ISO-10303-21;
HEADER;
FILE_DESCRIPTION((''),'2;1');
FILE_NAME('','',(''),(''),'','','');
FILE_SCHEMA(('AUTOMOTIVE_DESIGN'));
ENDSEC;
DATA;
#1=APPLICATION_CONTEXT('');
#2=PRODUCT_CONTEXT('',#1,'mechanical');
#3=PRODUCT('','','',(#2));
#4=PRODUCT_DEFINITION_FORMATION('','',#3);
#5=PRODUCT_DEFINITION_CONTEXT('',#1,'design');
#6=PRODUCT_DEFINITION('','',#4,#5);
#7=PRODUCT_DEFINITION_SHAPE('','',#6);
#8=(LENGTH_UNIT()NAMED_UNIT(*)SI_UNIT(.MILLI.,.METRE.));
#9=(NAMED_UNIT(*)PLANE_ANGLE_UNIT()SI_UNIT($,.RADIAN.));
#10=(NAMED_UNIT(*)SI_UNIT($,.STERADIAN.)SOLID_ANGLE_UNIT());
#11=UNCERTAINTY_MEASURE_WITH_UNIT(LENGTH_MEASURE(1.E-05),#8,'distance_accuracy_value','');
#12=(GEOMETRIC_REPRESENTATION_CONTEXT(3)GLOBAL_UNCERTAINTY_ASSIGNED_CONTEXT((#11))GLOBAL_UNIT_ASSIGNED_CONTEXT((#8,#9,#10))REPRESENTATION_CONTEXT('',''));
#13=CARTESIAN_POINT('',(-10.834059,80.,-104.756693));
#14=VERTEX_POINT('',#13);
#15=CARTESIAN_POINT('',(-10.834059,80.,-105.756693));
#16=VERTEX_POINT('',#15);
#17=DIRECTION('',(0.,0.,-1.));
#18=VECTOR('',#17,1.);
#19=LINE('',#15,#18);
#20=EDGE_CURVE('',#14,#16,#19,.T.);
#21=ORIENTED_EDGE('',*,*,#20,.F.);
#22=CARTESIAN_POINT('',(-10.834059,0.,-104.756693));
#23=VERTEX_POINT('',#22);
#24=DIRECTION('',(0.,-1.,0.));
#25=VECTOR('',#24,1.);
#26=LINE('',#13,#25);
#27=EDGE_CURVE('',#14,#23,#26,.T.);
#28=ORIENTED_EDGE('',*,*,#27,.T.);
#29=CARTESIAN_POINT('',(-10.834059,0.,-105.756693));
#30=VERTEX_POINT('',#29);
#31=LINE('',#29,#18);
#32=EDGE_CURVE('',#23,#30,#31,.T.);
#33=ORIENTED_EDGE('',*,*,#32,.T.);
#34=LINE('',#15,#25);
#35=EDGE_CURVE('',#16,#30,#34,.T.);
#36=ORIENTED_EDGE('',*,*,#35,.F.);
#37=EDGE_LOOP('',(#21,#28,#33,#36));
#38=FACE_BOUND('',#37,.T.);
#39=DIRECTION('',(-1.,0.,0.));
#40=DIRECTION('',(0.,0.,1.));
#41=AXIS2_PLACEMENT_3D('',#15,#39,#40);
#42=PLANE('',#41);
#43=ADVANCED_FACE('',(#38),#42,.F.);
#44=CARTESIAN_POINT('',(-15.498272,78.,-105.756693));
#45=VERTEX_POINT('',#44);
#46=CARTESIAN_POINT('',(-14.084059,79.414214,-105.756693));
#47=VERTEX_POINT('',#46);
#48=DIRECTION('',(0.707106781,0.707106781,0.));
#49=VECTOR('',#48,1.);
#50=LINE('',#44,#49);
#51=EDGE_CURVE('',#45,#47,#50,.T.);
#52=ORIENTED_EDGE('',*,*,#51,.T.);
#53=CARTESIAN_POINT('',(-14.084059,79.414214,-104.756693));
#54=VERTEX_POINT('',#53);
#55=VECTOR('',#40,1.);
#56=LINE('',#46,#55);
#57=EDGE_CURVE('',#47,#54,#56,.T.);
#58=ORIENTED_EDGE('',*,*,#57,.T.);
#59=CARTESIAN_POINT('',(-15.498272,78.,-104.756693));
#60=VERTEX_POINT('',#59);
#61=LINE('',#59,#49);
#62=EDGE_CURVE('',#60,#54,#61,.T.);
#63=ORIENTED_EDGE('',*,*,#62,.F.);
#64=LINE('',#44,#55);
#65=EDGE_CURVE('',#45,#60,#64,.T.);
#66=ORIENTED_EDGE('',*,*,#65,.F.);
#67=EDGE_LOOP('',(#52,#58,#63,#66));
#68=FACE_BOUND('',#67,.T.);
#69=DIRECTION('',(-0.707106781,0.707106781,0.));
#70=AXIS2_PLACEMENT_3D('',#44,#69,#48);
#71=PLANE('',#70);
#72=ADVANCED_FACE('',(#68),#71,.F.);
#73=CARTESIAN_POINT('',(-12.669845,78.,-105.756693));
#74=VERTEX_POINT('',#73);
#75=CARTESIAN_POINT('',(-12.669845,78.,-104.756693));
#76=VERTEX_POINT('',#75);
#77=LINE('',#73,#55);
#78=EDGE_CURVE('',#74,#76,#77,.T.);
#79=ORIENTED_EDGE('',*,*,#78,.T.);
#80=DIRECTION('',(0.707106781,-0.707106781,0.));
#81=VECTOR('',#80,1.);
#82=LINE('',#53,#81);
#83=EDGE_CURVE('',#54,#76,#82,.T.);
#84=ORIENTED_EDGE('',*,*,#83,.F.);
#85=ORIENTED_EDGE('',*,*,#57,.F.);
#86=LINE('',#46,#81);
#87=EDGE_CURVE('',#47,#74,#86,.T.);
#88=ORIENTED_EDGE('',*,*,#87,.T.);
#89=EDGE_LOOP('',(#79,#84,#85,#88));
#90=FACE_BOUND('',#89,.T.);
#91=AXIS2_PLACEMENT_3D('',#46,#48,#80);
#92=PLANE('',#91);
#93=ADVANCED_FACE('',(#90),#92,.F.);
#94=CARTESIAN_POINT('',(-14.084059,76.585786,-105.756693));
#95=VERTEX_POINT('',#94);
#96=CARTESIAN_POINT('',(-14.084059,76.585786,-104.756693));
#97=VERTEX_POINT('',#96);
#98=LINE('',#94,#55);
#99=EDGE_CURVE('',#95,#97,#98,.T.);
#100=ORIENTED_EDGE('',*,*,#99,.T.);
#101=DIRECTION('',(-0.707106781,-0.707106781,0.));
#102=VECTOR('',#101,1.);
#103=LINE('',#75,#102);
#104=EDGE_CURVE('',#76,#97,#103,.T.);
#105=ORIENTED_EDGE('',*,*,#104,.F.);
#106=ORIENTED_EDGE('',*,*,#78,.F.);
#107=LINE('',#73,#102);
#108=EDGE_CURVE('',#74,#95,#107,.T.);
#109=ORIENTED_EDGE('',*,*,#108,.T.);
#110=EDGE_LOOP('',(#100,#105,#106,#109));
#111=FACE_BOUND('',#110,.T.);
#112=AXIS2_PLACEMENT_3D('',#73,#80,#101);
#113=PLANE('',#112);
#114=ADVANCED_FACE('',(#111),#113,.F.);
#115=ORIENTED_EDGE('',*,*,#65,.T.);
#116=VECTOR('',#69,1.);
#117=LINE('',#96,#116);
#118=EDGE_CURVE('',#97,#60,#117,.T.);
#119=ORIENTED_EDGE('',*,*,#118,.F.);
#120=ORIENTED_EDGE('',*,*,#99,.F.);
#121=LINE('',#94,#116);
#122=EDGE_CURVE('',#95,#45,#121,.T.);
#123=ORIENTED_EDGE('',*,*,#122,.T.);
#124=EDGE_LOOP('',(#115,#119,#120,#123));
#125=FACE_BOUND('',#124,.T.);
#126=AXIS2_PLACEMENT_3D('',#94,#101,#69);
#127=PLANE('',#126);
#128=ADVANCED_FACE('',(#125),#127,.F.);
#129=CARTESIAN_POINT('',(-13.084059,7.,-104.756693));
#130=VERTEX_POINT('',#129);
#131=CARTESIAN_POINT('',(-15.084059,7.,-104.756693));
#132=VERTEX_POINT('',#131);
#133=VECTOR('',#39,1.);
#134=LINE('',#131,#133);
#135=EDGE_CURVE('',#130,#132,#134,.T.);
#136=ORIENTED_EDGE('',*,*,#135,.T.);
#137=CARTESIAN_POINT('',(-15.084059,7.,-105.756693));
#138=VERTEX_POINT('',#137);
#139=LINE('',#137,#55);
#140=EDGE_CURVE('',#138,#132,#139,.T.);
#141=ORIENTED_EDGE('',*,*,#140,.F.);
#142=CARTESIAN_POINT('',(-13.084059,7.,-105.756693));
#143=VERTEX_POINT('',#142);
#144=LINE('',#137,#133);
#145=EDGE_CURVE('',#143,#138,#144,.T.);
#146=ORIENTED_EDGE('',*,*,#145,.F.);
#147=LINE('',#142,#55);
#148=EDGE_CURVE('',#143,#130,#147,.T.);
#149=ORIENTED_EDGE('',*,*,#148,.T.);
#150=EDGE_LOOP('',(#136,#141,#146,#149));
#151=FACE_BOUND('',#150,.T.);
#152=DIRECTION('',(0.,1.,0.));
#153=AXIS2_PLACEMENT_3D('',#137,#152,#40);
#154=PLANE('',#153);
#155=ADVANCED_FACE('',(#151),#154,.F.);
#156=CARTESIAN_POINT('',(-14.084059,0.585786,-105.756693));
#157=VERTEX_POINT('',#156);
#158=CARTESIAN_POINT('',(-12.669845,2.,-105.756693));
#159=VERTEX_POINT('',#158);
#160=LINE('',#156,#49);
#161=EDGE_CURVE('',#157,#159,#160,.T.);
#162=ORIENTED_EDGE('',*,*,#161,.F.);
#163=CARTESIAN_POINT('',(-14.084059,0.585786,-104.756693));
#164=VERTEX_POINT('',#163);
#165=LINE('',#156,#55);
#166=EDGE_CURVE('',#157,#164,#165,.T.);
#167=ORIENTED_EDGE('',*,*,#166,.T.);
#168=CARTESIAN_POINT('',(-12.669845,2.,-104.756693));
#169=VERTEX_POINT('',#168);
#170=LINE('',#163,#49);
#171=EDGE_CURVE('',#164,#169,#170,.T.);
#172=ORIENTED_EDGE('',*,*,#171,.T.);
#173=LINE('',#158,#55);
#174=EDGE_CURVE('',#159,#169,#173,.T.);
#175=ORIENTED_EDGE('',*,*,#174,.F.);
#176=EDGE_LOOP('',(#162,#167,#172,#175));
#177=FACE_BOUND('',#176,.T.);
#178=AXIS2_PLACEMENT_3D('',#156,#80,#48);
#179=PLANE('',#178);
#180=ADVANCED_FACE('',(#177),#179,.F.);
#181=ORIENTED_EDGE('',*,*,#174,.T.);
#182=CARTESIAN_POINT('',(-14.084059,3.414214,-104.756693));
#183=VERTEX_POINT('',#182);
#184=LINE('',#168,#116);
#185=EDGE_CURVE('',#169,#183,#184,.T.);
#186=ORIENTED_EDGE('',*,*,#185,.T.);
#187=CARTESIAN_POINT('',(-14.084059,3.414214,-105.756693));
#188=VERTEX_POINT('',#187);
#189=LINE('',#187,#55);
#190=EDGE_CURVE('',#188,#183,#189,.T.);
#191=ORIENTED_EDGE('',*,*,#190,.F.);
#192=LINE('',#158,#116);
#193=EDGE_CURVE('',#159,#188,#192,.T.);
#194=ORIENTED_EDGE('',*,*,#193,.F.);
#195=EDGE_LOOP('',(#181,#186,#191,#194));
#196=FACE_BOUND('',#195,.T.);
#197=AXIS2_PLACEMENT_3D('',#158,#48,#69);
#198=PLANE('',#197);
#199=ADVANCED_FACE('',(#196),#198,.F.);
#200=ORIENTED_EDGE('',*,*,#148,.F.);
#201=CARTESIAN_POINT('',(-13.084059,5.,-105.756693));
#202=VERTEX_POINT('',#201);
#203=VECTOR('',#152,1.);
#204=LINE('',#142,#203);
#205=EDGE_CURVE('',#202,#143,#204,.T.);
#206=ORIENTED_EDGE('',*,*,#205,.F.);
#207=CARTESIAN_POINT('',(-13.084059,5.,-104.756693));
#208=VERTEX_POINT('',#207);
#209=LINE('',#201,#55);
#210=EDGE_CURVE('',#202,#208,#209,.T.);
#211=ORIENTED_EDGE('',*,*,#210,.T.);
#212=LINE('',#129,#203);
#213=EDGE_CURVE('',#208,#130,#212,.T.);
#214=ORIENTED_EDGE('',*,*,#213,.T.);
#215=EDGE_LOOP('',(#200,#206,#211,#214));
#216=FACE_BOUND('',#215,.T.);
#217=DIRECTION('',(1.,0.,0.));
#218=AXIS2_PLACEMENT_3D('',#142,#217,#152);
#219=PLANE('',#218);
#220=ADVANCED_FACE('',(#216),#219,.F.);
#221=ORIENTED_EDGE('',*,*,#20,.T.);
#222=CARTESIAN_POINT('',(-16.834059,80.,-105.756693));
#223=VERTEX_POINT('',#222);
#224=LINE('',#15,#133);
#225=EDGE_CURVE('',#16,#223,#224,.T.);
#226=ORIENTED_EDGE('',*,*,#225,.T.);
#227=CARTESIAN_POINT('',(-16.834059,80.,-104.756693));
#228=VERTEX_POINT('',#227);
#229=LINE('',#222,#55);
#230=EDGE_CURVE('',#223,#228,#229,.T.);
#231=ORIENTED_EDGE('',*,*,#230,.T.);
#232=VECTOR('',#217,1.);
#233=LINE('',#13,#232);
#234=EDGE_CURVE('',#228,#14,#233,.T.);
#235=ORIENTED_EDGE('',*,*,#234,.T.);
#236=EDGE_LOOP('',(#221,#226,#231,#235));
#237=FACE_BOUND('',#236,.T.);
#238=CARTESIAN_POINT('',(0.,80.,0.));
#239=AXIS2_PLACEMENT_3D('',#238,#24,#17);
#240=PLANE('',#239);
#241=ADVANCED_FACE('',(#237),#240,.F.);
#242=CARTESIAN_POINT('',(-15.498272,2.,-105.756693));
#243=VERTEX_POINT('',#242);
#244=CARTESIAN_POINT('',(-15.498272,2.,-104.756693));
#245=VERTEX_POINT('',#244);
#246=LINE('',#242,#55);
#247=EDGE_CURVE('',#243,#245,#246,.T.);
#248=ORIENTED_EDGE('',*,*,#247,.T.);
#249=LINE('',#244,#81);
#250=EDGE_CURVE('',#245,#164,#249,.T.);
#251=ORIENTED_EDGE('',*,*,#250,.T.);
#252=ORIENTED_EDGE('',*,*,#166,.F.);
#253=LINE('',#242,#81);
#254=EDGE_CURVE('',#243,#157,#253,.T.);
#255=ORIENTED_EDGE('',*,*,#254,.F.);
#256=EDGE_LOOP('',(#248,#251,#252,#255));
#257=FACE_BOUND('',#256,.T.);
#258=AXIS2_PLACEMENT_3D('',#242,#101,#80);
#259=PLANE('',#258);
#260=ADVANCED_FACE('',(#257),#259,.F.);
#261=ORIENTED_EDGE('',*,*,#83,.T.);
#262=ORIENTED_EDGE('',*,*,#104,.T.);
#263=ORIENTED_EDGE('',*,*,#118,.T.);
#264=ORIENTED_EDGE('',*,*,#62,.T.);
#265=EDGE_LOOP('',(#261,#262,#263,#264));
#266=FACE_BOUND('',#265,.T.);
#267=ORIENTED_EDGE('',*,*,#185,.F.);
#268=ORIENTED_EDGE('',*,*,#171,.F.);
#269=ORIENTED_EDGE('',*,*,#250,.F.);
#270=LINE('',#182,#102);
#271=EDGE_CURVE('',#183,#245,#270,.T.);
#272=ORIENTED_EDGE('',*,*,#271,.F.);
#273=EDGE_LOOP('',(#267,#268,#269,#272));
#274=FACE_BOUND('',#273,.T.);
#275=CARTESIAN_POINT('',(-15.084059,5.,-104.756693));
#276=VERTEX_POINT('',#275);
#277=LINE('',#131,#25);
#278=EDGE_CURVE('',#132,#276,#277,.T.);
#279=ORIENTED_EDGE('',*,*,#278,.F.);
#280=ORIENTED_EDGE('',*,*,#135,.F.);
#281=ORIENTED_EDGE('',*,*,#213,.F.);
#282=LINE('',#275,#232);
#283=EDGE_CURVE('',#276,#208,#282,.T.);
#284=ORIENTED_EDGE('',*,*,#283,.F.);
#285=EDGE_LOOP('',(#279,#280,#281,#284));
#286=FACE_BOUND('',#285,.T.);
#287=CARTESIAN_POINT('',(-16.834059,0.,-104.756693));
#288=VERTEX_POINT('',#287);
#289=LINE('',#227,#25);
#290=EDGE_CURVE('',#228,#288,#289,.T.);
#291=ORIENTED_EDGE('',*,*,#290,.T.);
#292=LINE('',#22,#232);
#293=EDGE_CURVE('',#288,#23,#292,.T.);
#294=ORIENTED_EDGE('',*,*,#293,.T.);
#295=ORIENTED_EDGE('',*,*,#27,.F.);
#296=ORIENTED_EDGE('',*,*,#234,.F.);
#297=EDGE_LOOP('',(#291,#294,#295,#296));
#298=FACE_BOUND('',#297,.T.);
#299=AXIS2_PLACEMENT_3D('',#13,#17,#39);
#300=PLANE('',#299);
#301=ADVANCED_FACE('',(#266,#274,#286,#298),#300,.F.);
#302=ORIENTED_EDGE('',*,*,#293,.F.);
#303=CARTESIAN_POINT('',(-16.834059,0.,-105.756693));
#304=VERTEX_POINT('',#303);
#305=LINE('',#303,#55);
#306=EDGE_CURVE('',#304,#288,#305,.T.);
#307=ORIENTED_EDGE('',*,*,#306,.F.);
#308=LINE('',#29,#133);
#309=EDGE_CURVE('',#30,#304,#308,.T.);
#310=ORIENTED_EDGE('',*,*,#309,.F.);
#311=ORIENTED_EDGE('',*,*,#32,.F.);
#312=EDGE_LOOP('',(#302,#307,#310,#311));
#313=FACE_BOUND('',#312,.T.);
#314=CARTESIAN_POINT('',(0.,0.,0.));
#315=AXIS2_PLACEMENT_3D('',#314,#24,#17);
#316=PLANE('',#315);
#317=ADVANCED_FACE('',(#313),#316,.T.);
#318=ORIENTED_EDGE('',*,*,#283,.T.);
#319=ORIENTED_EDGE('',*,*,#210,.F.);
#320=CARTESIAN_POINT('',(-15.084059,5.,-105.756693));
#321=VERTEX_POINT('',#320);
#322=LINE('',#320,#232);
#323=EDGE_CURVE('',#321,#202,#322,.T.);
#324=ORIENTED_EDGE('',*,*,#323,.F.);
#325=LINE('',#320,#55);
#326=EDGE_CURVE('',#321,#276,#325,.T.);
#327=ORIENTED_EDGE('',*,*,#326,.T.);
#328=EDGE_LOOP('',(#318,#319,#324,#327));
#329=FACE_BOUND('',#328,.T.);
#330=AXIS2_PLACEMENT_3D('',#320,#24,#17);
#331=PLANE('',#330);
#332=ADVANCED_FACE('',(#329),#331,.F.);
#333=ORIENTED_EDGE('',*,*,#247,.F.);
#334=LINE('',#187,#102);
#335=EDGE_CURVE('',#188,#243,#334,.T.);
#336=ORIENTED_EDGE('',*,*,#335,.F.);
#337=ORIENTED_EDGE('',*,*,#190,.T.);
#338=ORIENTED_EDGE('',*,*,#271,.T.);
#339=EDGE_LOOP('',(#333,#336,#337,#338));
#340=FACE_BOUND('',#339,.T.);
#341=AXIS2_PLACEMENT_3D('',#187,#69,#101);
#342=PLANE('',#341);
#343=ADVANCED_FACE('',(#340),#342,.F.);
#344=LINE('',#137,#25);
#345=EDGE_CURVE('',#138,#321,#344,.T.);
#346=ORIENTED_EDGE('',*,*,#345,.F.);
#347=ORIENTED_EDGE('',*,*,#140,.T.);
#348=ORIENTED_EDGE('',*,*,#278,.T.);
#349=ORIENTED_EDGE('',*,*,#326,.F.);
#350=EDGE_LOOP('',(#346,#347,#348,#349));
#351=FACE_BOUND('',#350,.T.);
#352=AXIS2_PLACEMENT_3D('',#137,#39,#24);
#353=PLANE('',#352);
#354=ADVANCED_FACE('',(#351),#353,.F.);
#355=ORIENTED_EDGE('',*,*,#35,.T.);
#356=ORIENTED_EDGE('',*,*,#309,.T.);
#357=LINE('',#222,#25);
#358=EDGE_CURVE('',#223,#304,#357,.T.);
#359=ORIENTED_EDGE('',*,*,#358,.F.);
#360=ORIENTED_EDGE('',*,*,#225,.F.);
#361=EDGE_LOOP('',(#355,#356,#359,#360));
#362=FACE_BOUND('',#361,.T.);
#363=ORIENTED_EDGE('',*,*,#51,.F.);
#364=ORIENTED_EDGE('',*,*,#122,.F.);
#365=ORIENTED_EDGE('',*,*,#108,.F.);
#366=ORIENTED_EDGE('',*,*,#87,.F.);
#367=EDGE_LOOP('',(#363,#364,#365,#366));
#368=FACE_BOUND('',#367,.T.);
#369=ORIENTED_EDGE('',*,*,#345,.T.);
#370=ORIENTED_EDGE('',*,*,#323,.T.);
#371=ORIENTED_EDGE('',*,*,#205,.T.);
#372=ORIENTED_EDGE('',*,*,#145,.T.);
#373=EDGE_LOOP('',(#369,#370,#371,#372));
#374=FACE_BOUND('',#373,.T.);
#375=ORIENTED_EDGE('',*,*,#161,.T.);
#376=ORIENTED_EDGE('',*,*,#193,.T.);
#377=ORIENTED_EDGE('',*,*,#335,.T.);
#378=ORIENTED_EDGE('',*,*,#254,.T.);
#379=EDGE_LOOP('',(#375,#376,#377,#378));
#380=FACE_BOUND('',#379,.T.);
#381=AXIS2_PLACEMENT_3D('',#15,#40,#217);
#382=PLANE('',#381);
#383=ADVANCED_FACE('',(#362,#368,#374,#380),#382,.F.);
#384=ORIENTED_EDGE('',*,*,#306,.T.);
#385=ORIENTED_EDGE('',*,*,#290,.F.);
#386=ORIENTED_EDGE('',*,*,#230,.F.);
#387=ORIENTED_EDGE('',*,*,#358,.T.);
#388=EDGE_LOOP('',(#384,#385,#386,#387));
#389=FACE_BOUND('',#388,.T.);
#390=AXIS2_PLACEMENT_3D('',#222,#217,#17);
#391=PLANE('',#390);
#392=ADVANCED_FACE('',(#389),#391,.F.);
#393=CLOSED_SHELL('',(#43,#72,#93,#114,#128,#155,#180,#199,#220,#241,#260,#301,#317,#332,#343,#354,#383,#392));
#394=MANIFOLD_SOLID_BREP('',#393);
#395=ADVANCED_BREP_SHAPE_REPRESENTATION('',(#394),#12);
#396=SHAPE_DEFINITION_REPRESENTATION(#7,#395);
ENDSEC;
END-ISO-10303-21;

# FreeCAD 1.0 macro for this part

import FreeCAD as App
import Part
import Sketcher
from FreeCAD import Vector


def add_polygon(sketch, points):
    """Adds a closed chain of lines whose ends are joined by coincident constraints."""
    first, n = sketch.GeometryCount, len(points)
    for a, b in zip(points, points[1:] + points[:1]):
        sketch.addGeometry(Part.LineSegment(App.Vector(*a, 0), App.Vector(*b, 0)), False)
    for i in range(n):
        sketch.addConstraint(Sketcher.Constraint("Coincident", first + i, 2, first + (i + 1) % n, 1))

doc = App.newDocument("Part")
params = doc.addObject("Spreadsheet::Sheet", "Params")
for row, (alias, value) in enumerate([
    ("sketch1_width", "6 mm"),
    ("sketch1_height", "1 mm"),
    ("pad1_length", "80 mm"),
    ("sketch2_length", "2 mm"),
    ("sketch3_width", "2 mm"),
], start=1):
    params.set(f"A{row}", alias)
    params.set(f"B{row}", "=" + value)
    params.setAlias(f"B{row}", alias)

body = doc.addObject("PartDesign::Body", "Body")

# Sketch on XZ plane
sketch1 = body.newObject("Sketcher::SketchObject", "Sketch")
sketch1.AttachmentSupport = (doc.getObject("XZ_Plane"), [""])
sketch1.MapMode = "FlatFace"
add_polygon(sketch1, [(-10.8, -104.8), (-10.8, -105.8), (-16.8, -105.8), (-16.8, -104.8)])  # lines 0-3
sketch1.addConstraint(Sketcher.Constraint("Vertical", 0))
sketch1.addConstraint(Sketcher.Constraint("Horizontal", 1))
sketch1.addConstraint(Sketcher.Constraint("Vertical", 2))
sketch1.addConstraint(Sketcher.Constraint("Horizontal", 3))
sketch1.addConstraint(Sketcher.Constraint("DistanceX", 1, 2, 1, 1, 6.0))
sketch1.addConstraint(Sketcher.Constraint("DistanceY", 0, 2, 0, 1, 1.0))
sketch1.addConstraint(Sketcher.Constraint("DistanceX", 0, 2, -1, 1, 10.834059))
sketch1.addConstraint(Sketcher.Constraint("DistanceY", 0, 2, -1, 1, 105.756693))
sketch1.setExpression("Constraints[8]", "Params.sketch1_width")
sketch1.setExpression("Constraints[9]", "Params.sketch1_height")
pad1 = body.newObject("PartDesign::Pad", "Pad")
pad1.Profile = sketch1
pad1.setExpression("Length", "Params.pad1_length")
pad1.Reversed = True

# Sketch on XY plane
sketch2 = body.newObject("Sketcher::SketchObject", "Sketch001")
sketch2.AttachmentSupport = (doc.getObject("XY_Plane"), [""])
sketch2.MapMode = "FlatFace"
sketch2.AttachmentOffset = App.Placement(Vector(0, 0, -104.756693), App.Rotation())
add_polygon(sketch2, [(-12.7, 2), (-14.1, 3.4), (-15.5, 2), (-14.1, 0.6)])  # lines 0-3
sketch2.addConstraint(Sketcher.Constraint("Perpendicular", 0, 1))
sketch2.addConstraint(Sketcher.Constraint("Perpendicular", 1, 2))
sketch2.addConstraint(Sketcher.Constraint("Perpendicular", 2, 3))
sketch2.addConstraint(Sketcher.Constraint("Horizontal", 1, 2, 3, 2))
sketch2.addConstraint(Sketcher.Constraint("Vertical", 0, 2, 2, 2))
sketch2.addConstraint(Sketcher.Constraint("Distance", 0, 2.0))
sketch2.addConstraint(Sketcher.Constraint("DistanceY", -1, 1, 1, 2, 2.0))
sketch2.addConstraint(Sketcher.Constraint("DistanceX", 0, 2, -1, 1, 14.084059))
sketch2.setExpression("Constraints[9]", "Params.sketch2_length")
pocket1 = body.newObject("PartDesign::Pocket", "Pocket")
pocket1.Profile = sketch2
pocket1.Type = "ThroughAll"
doc.recompute()

datumplane = body.newObject("PartDesign::Plane", "DatumPlane")
datumplane.AttachmentSupport = (doc.getObject("XZ_Plane"), [""])
datumplane.MapMode = "FlatFace"
datumplane.AttachmentOffset = App.Placement(Vector(0, 0, -40), App.Rotation())
mirrored = body.newObject("PartDesign::Mirrored", "Mirrored")
mirrored.Originals = [pocket1]
mirrored.MirrorPlane = (datumplane, [""])
body.Tip = mirrored

# Sketch on XY plane
sketch3 = body.newObject("Sketcher::SketchObject", "Sketch002")
sketch3.AttachmentSupport = (doc.getObject("XY_Plane"), [""])
sketch3.MapMode = "FlatFace"
sketch3.AttachmentOffset = App.Placement(Vector(0, 0, -104.756693), App.Rotation())
add_polygon(sketch3, [(-15.1, 7), (-15.1, 5), (-13.1, 5), (-13.1, 7)])  # lines 0-3
sketch3.addConstraint(Sketcher.Constraint("Vertical", 0))
sketch3.addConstraint(Sketcher.Constraint("Horizontal", 1))
sketch3.addConstraint(Sketcher.Constraint("Vertical", 2))
sketch3.addConstraint(Sketcher.Constraint("Horizontal", 3))
sketch3.addConstraint(Sketcher.Constraint("Equal", 3, 0))
sketch3.addConstraint(Sketcher.Constraint("DistanceX", 1, 1, 1, 2, 2.0))
sketch3.addConstraint(Sketcher.Constraint("DistanceY", -1, 1, 0, 2, 5.0))
sketch3.addConstraint(Sketcher.Constraint("DistanceX", 0, 2, -1, 1, 15.084059))
sketch3.setExpression("Constraints[9]", "Params.sketch3_width")
pocket2 = body.newObject("PartDesign::Pocket", "Pocket001")
pocket2.Profile = sketch3
pocket2.Type = "ThroughAll"

doc.recompute()
